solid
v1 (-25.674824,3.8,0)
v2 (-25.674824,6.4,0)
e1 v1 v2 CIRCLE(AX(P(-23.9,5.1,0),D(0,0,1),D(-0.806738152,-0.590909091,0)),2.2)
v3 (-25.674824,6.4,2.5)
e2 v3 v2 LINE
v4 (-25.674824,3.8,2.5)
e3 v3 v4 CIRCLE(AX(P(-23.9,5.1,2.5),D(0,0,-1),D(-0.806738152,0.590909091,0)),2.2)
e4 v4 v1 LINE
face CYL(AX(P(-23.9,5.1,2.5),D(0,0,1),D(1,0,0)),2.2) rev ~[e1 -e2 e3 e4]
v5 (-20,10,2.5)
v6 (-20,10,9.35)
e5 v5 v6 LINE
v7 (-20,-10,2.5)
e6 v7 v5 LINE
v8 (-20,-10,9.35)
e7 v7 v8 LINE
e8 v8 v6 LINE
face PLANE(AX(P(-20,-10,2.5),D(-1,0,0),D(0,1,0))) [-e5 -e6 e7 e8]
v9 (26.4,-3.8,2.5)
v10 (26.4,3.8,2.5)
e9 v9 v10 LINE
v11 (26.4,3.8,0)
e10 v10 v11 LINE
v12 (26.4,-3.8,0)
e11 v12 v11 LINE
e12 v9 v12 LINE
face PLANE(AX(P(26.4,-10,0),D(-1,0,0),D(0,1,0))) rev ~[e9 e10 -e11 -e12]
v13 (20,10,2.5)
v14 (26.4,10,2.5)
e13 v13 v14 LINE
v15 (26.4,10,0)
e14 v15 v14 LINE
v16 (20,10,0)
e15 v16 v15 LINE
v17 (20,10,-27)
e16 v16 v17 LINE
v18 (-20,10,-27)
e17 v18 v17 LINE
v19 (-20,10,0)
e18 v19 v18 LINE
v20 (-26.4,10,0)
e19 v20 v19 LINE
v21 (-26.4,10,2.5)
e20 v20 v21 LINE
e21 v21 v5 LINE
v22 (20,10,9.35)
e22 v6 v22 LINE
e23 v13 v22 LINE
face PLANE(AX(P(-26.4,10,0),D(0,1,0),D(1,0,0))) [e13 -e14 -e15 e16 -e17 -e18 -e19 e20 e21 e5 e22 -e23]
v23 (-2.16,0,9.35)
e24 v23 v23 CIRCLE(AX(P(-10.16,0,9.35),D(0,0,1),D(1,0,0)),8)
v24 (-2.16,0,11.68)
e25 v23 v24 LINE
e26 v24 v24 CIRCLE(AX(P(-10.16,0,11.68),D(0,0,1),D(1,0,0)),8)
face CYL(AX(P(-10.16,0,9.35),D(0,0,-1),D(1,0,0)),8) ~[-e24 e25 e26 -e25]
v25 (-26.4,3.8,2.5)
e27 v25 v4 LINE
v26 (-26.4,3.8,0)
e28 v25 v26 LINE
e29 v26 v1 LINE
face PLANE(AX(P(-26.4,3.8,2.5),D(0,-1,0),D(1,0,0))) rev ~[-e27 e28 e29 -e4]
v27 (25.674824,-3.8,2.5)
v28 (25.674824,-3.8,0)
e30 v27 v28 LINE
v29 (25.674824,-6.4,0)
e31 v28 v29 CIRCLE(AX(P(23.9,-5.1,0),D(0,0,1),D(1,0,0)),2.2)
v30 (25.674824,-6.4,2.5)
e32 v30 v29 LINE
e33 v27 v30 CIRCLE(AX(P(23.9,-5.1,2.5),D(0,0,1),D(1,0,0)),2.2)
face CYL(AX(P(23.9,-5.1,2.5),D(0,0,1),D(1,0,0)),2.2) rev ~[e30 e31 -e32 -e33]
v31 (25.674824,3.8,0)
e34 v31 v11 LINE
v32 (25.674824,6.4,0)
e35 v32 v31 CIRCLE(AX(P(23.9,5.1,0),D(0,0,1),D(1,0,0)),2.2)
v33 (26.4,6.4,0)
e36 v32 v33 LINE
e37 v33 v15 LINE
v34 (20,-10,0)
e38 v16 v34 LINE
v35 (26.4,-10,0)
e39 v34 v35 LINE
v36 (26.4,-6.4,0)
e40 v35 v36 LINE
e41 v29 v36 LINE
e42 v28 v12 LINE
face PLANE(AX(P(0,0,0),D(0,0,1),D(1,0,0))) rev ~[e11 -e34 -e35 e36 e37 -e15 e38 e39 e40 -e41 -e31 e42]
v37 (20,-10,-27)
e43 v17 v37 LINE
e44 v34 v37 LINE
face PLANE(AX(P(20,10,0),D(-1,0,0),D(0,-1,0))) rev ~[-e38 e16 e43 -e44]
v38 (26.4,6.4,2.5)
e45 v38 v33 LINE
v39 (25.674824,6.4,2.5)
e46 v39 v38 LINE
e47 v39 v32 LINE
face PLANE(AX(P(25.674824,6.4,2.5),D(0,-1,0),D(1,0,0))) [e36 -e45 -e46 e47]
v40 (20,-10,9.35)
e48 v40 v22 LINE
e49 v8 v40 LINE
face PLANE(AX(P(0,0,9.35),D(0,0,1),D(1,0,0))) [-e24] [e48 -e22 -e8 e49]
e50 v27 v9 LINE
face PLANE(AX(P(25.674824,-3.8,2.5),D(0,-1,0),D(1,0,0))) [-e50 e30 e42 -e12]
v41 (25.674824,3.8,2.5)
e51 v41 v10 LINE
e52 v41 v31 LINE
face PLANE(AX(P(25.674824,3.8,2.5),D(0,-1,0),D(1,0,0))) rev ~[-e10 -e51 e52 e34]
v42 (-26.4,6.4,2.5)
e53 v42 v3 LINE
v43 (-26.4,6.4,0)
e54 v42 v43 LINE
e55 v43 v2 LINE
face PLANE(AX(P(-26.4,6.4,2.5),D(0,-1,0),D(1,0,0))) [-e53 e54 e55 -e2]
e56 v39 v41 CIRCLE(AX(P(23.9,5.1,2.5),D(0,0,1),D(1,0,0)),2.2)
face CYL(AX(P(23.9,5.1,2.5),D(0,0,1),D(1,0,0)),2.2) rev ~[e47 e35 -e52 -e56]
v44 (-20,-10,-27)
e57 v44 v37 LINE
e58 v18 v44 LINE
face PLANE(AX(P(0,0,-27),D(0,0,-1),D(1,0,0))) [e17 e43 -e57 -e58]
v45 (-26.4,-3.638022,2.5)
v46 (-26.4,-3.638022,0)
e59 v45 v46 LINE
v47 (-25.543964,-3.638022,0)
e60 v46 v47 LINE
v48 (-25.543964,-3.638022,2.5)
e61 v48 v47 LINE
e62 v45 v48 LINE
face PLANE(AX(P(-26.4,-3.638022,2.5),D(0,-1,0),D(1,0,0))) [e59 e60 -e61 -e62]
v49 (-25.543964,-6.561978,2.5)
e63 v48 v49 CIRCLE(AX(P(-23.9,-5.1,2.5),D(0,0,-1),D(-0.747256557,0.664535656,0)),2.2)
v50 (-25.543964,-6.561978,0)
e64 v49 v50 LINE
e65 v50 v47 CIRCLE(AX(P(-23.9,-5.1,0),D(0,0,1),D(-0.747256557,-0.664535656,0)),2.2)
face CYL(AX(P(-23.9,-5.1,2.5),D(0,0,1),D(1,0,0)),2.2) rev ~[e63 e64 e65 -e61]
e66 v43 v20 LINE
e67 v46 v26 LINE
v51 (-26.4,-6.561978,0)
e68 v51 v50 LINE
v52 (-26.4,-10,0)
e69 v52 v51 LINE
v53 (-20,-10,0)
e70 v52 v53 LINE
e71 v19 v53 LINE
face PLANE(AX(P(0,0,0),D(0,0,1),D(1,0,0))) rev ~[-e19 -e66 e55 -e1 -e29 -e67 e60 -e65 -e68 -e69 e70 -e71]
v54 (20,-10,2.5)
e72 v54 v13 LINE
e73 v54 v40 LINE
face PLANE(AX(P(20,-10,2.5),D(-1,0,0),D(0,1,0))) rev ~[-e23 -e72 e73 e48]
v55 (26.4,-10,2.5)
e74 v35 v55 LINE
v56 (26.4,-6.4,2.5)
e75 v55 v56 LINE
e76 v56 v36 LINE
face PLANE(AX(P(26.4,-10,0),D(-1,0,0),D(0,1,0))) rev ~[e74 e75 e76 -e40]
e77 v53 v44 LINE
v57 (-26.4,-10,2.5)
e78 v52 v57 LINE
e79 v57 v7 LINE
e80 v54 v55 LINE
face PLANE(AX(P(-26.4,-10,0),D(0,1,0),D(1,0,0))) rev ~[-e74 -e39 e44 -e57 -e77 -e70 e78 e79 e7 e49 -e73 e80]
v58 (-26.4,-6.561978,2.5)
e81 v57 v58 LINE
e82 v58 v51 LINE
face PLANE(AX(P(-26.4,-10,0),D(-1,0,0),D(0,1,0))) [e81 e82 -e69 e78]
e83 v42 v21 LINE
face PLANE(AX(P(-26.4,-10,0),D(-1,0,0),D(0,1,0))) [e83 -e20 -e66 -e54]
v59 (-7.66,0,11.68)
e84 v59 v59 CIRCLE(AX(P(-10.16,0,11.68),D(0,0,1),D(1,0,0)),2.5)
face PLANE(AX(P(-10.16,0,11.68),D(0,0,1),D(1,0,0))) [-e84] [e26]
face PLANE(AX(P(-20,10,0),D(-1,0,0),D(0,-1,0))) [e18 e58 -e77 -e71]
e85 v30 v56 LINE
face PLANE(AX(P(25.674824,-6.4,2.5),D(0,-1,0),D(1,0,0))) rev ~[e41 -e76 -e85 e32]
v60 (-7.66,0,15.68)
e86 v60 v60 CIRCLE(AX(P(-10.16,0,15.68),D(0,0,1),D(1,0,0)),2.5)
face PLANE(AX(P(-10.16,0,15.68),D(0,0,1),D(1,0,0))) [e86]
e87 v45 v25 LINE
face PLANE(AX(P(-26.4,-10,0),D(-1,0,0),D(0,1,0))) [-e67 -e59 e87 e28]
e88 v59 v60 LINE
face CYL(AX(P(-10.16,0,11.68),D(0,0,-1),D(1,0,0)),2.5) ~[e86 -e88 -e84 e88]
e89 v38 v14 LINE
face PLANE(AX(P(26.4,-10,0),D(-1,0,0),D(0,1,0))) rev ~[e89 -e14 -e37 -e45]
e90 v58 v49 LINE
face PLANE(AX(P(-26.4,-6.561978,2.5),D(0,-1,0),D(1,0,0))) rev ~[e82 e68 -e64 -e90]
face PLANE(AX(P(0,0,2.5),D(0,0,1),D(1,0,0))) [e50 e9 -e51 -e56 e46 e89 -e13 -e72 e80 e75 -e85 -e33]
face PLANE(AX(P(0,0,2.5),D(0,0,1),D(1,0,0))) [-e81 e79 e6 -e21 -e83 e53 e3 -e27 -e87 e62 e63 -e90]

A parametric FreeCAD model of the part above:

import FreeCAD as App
import Part
import Sketcher
from FreeCAD import Vector

doc = App.newDocument("Part")
body = doc.addObject("PartDesign::Body", "Body")

sketch1 = body.newObject("Sketcher::SketchObject", "Sketch")
sketch1.AttachmentSupport = (doc.getObject("XY_Plane"), [""])
sketch1.MapMode = "FlatFace"
sketch1.addGeometry([
    Part.LineSegment(Vector(-26.4, 10, 0), Vector(-26.4, -10, 0)),
    Part.LineSegment(Vector(-26.4, -10, 0), Vector(26.4, -10, 0)),
    Part.LineSegment(Vector(26.4, -10, 0), Vector(26.4, 10, 0)),
    Part.LineSegment(Vector(26.4, 10, 0), Vector(-26.4, 10, 0)),
], False)
sketch1.addConstraint([
    Sketcher.Constraint("Coincident", 0, 2, 1, 1),
    Sketcher.Constraint("Coincident", 1, 2, 2, 1),
    Sketcher.Constraint("Coincident", 2, 2, 3, 1),
    Sketcher.Constraint("Coincident", 3, 2, 0, 1),
    Sketcher.Constraint("Vertical", 0),
    Sketcher.Constraint("Horizontal", 1),
    Sketcher.Constraint("Vertical", 2),
    Sketcher.Constraint("Horizontal", 3),
    Sketcher.Constraint("Symmetric", 0, 2, 2, 2, -1, 1),
    Sketcher.Constraint("DistanceY", 0, 2, 0, 1, 20.0),
    Sketcher.Constraint("DistanceX", 1, 1, 1, 2, 52.8),
])
pad1 = body.newObject("PartDesign::Pad", "Pad")
pad1.Profile = sketch1
pad1.Length = 2.5

sketch2 = body.newObject("Sketcher::SketchObject", "Sketch001")
sketch2.AttachmentSupport = (doc.getObject("XY_Plane"), [""])
sketch2.MapMode = "FlatFace"
sketch2.AttachmentOffset = App.Placement(Vector(0, 0, 2.5), App.Rotation())
sketch2.addGeometry([
    Part.LineSegment(Vector(-20, 10, 0), Vector(-20, -10, 0)),
    Part.LineSegment(Vector(-20, -10, 0), Vector(20, -10, 0)),
    Part.LineSegment(Vector(20, -10, 0), Vector(20, 10, 0)),
    Part.LineSegment(Vector(20, 10, 0), Vector(-20, 10, 0)),
], False)
sketch2.addConstraint([
    Sketcher.Constraint("Coincident", 0, 2, 1, 1),
    Sketcher.Constraint("Coincident", 1, 2, 2, 1),
    Sketcher.Constraint("Coincident", 2, 2, 3, 1),
    Sketcher.Constraint("Coincident", 3, 2, 0, 1),
    Sketcher.Constraint("Vertical", 0),
    Sketcher.Constraint("Horizontal", 1),
    Sketcher.Constraint("Vertical", 2),
    Sketcher.Constraint("Horizontal", 3),
    Sketcher.Constraint("Symmetric", 0, 2, 2, 2, -1, 1),
    Sketcher.Constraint("DistanceX", 1, 1, 1, 2, 40.0),
    Sketcher.Constraint("DistanceY", 0, 2, 0, 1, 20.0),
])
pad2 = body.newObject("PartDesign::Pad", "Pad001")
pad2.Profile = sketch2
pad2.Length = 6.85

sketch3 = body.newObject("Sketcher::SketchObject", "Sketch002")
sketch3.AttachmentSupport = (doc.getObject("XY_Plane"), [""])
sketch3.MapMode = "FlatFace"
sketch3.addGeometry([
    Part.LineSegment(Vector(-20, -10, 0), Vector(-20, 10, 0)),
    Part.LineSegment(Vector(-20, 10, 0), Vector(20, 10, 0)),
    Part.LineSegment(Vector(20, 10, 0), Vector(20, -10, 0)),
    Part.LineSegment(Vector(20, -10, 0), Vector(-20, -10, 0)),
], False)
sketch3.addConstraint([
    Sketcher.Constraint("Coincident", 0, 2, 1, 1),
    Sketcher.Constraint("Coincident", 1, 2, 2, 1),
    Sketcher.Constraint("Coincident", 2, 2, 3, 1),
    Sketcher.Constraint("Coincident", 3, 2, 0, 1),
    Sketcher.Constraint("Vertical", 0),
    Sketcher.Constraint("Horizontal", 1),
    Sketcher.Constraint("Vertical", 2),
    Sketcher.Constraint("Horizontal", 3),
    Sketcher.Constraint("Symmetric", 0, 2, 2, 2, -1, 1),
    Sketcher.Constraint("DistanceX", 1, 1, 1, 2, 40.0),
    Sketcher.Constraint("DistanceY", 0, 1, 0, 2, 20.0),
])
pad3 = body.newObject("PartDesign::Pad", "Pad002")
pad3.Profile = sketch3
pad3.Length = 27
pad3.Reversed = True

sketch4 = body.newObject("Sketcher::SketchObject", "Sketch003")
sketch4.AttachmentSupport = (doc.getObject("XY_Plane"), [""])
sketch4.MapMode = "FlatFace"
sketch4.AttachmentOffset = App.Placement(Vector(0, 0, 2.5), App.Rotation())
sketch4.addGeometry([
    Part.Circle(Vector(-23.9, 5.1, 0), Vector(0, 0, 1), 2.2),
    Part.Circle(Vector(-23.9, -5.1, 0), Vector(0, 0, 1), 2.2),
    Part.Circle(Vector(23.9, 5.1, 0), Vector(0, 0, 1), 2.2),
    Part.Circle(Vector(23.9, -5.1, 0), Vector(0, 0, 1), 2.2),
], False)
sketch4.addConstraint([
    Sketcher.Constraint("Equal", 0, 1),
    Sketcher.Constraint("Equal", 1, 2),
    Sketcher.Constraint("Equal", 2, 3),
    Sketcher.Constraint("Symmetric", 1, 3, 2, 3, -1, 1),
    Sketcher.Constraint("Symmetric", 0, 3, 3, 3, -1, 1),
    Sketcher.Constraint("Symmetric", 0, 3, 2, 3, -2),
    Sketcher.Constraint("Diameter", 0, 4.4),
    Sketcher.Constraint("DistanceX", 0, 3, -1, 1, 23.9),
    Sketcher.Constraint("DistanceY", -1, 1, 0, 3, 5.1),
])
pocket1 = body.newObject("PartDesign::Pocket", "Pocket")
pocket1.Profile = sketch4
pocket1.Type = "ThroughAll"

sketch5 = body.newObject("Sketcher::SketchObject", "Sketch004")
sketch5.AttachmentSupport = (doc.getObject("XY_Plane"), [""])
sketch5.MapMode = "FlatFace"
sketch5.AttachmentOffset = App.Placement(Vector(0, 0, 2.5), App.Rotation())
sketch5.addGeometry([
    Part.LineSegment(Vector(-26.4, 6.4, 0), Vector(-26.4, 3.8, 0)),
    Part.LineSegment(Vector(-26.4, 3.8, 0), Vector(-25.674824, 3.8, 0)),
    Part.LineSegment(Vector(-25.674824, 3.8, 0), Vector(-25.674824, 6.4, 0)),
    Part.LineSegment(Vector(-25.674824, 6.4, 0), Vector(-26.4, 6.4, 0)),
    Part.LineSegment(Vector(-26.4, -3.638022, 0), Vector(-26.4, -6.561978, 0)),
    Part.LineSegment(Vector(-26.4, -6.561978, 0), Vector(-25.543964, -6.561978, 0)),
    Part.LineSegment(Vector(-25.543964, -6.561978, 0), Vector(-25.543964, -3.638022, 0)),
    Part.LineSegment(Vector(-25.543964, -3.638022, 0), Vector(-26.4, -3.638022, 0)),
], False)
sketch5.addConstraint([
    Sketcher.Constraint("Coincident", 0, 2, 1, 1),
    Sketcher.Constraint("Coincident", 1, 2, 2, 1),
    Sketcher.Constraint("Coincident", 2, 2, 3, 1),
    Sketcher.Constraint("Coincident", 3, 2, 0, 1),
    Sketcher.Constraint("Coincident", 4, 2, 5, 1),
    Sketcher.Constraint("Coincident", 5, 2, 6, 1),
    Sketcher.Constraint("Coincident", 6, 2, 7, 1),
    Sketcher.Constraint("Coincident", 7, 2, 4, 1),
    Sketcher.Constraint("Vertical", 0),
    Sketcher.Constraint("Horizontal", 1),
    Sketcher.Constraint("Vertical", 2),
    Sketcher.Constraint("Horizontal", 3),
    Sketcher.Constraint("Vertical", 4),
    Sketcher.Constraint("Horizontal", 5),
    Sketcher.Constraint("Vertical", 6),
    Sketcher.Constraint("Horizontal", 7),
    Sketcher.Constraint("Vertical", 3, 2, 4, 2),
    Sketcher.Constraint("DistanceY", 0, 2, 0, 1, 2.6),
    Sketcher.Constraint("DistanceX", 0, 2, -1, 1, 26.4),
    Sketcher.Constraint("DistanceY", -1, 1, 0, 2, 3.8),
    Sketcher.Constraint("DistanceX", 1, 1, 1, 2, 0.725176),
    Sketcher.Constraint("DistanceX", 5, 1, 5, 2, 0.856036),
    Sketcher.Constraint("DistanceY", 4, 2, 4, 1, 2.923957),
    Sketcher.Constraint("DistanceY", 4, 2, -1, 1, 6.561978),
])
pocket2 = body.newObject("PartDesign::Pocket", "Pocket001")
pocket2.Profile = sketch5
pocket2.Length = 4

sketch6 = body.newObject("Sketcher::SketchObject", "Sketch005")
sketch6.AttachmentSupport = (doc.getObject("XY_Plane"), [""])
sketch6.MapMode = "FlatFace"
sketch6.AttachmentOffset = App.Placement(Vector(0, 0, 2.5), App.Rotation())
sketch6.addGeometry([
    Part.LineSegment(Vector(25.674824, 6.4, 0), Vector(25.674824, 3.8, 0)),
    Part.LineSegment(Vector(25.674824, 3.8, 0), Vector(26.4, 3.8, 0)),
    Part.LineSegment(Vector(26.4, 3.8, 0), Vector(26.4, 6.4, 0)),
    Part.LineSegment(Vector(26.4, 6.4, 0), Vector(25.674824, 6.4, 0)),
    Part.LineSegment(Vector(25.674824, -3.8, 0), Vector(25.674824, -6.4, 0)),
    Part.LineSegment(Vector(25.674824, -6.4, 0), Vector(26.4, -6.4, 0)),
    Part.LineSegment(Vector(26.4, -6.4, 0), Vector(26.4, -3.8, 0)),
    Part.LineSegment(Vector(26.4, -3.8, 0), Vector(25.674824, -3.8, 0)),
], False)
sketch6.addConstraint([
    Sketcher.Constraint("Coincident", 0, 2, 1, 1),
    Sketcher.Constraint("Coincident", 1, 2, 2, 1),
    Sketcher.Constraint("Coincident", 2, 2, 3, 1),
    Sketcher.Constraint("Coincident", 3, 2, 0, 1),
    Sketcher.Constraint("Coincident", 4, 2, 5, 1),
    Sketcher.Constraint("Coincident", 5, 2, 6, 1),
    Sketcher.Constraint("Coincident", 6, 2, 7, 1),
    Sketcher.Constraint("Coincident", 7, 2, 4, 1),
    Sketcher.Constraint("Vertical", 0),
    Sketcher.Constraint("Horizontal", 1),
    Sketcher.Constraint("Vertical", 2),
    Sketcher.Constraint("Horizontal", 3),
    Sketcher.Constraint("Vertical", 4),
    Sketcher.Constraint("Horizontal", 5),
    Sketcher.Constraint("Vertical", 6),
    Sketcher.Constraint("Horizontal", 7),
    Sketcher.Constraint("Symmetric", 3, 2, 4, 2, -1),
    Sketcher.Constraint("Symmetric", 1, 2, 6, 2, -1),
    Sketcher.Constraint("DistanceY", 0, 2, 0, 1, 2.6),
    Sketcher.Constraint("DistanceY", -1, 1, 0, 2, 3.8),
    Sketcher.Constraint("DistanceX", -1, 1, 1, 2, 26.4),
    Sketcher.Constraint("DistanceX", 1, 1, 1, 2, 0.725176),
])
pocket3 = body.newObject("PartDesign::Pocket", "Pocket002")
pocket3.Profile = sketch6
pocket3.Length = 5

sketch7 = body.newObject("Sketcher::SketchObject", "Sketch006")
sketch7.AttachmentSupport = (doc.getObject("XY_Plane"), [""])
sketch7.MapMode = "FlatFace"
sketch7.AttachmentOffset = App.Placement(Vector(0, 0, 9.35), App.Rotation())
sketch7.addGeometry(Part.Circle(Vector(-10.16, 0, 0), Vector(0, 0, 1), 8), False)
sketch7.addConstraint([
    Sketcher.Constraint("PointOnObject", 0, 3, -1),
    Sketcher.Constraint("Diameter", 0, 16.0),
    Sketcher.Constraint("DistanceX", 0, 3, -1, 1, 10.16),
])
pad4 = body.newObject("PartDesign::Pad", "Pad003")
pad4.Profile = sketch7
pad4.Length = 2.33

sketch8 = body.newObject("Sketcher::SketchObject", "Sketch007")
sketch8.AttachmentSupport = (doc.getObject("XY_Plane"), [""])
sketch8.MapMode = "FlatFace"
sketch8.AttachmentOffset = App.Placement(Vector(0, 0, 11.68), App.Rotation())
sketch8.addGeometry(Part.Circle(Vector(-10.16, 0, 0), Vector(0, 0, 1), 2.5), False)
sketch8.addConstraint([
    Sketcher.Constraint("PointOnObject", 0, 3, -1),
    Sketcher.Constraint("Diameter", 0, 5.0),
    Sketcher.Constraint("DistanceX", 0, 3, -1, 1, 10.16),
])
pad5 = body.newObject("PartDesign::Pad", "Pad004")
pad5.Profile = sketch8
pad5.Length = 4

doc.recompute()
